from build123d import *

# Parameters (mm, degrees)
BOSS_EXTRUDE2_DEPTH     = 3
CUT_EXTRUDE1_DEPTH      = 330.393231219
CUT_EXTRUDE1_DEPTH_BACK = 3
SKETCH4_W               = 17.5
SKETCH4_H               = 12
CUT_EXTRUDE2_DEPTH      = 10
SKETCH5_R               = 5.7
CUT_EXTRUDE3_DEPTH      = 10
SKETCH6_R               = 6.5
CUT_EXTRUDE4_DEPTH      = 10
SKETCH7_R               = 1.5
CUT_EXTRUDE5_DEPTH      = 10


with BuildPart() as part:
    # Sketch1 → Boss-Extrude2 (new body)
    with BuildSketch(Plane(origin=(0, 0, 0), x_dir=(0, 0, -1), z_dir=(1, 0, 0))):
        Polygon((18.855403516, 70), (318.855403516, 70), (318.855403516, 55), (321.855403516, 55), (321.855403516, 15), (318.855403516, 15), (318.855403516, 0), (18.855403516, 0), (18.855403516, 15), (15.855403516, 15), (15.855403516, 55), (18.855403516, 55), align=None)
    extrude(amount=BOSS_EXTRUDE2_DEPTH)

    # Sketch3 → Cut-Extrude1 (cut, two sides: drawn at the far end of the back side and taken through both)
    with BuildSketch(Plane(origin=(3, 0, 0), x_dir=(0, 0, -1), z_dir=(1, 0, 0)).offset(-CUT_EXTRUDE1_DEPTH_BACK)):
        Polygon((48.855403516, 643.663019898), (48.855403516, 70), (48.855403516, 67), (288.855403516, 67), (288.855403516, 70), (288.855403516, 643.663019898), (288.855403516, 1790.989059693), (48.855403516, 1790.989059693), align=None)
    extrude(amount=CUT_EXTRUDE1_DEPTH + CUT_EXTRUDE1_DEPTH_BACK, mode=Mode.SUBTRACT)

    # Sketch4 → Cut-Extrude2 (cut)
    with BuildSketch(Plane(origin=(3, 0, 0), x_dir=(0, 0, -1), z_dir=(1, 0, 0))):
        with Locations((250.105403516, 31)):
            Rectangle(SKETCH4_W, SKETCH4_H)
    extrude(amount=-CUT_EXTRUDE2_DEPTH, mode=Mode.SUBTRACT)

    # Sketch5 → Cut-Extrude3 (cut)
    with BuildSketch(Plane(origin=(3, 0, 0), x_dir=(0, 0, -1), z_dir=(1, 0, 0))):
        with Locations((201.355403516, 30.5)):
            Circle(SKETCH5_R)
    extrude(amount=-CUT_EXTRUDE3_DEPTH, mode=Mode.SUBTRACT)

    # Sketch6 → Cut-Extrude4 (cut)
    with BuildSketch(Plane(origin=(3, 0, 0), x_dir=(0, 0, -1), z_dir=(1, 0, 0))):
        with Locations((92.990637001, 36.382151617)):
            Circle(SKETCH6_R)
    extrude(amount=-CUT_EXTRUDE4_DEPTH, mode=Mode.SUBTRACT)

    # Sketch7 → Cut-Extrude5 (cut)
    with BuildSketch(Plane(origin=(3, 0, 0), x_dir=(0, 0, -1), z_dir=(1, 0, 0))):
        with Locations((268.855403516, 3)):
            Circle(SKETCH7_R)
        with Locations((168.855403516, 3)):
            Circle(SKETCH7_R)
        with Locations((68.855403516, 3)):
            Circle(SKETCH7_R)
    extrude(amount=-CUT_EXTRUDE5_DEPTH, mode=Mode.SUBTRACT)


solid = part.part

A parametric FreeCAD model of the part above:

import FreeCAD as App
import Part
import Sketcher
Q = App.Units.Quantity


def add_polygon(sketch, points):
    """Adds a closed chain of lines whose ends are joined by coincident constraints."""
    first, n = sketch.GeometryCount, len(points)
    for a, b in zip(points, points[1:] + points[:1]):
        sketch.addGeometry(Part.LineSegment(App.Vector(*a, 0), App.Vector(*b, 0)), False)
    for i in range(n):
        sketch.addConstraint(Sketcher.Constraint("Coincident", first + i, 2, first + (i + 1) % n, 1))

doc = App.newDocument("Part")
body = doc.addObject("PartDesign::Body", "Body")

sketch1 = body.newObject("Sketcher::SketchObject", "Sketch")
sketch1.AttachmentSupport = (doc.getObject("YZ_Plane"), [""])
sketch1.MapMode = "FlatFace"
add_polygon(sketch1, [(70, -318.9), (70, -18.9), (55, -18.9), (55, -15.9), (15, -15.9), (15, -18.9), (0, -18.9), (0, -318.9), (15, -318.9), (15, -321.9), (55, -321.9), (55, -318.9)])
sketch1.addConstraint([
    Sketcher.Constraint("Vertical", 0),
    Sketcher.Constraint("Horizontal", 1),
    Sketcher.Constraint("Vertical", 2),
    Sketcher.Constraint("Horizontal", 3),
    Sketcher.Constraint("Vertical", 4),
    Sketcher.Constraint("Horizontal", 5),
    Sketcher.Constraint("Vertical", 6),
    Sketcher.Constraint("Horizontal", 7),
    Sketcher.Constraint("Vertical", 8),
    Sketcher.Constraint("Horizontal", 9),
    Sketcher.Constraint("Vertical", 10),
    Sketcher.Constraint("Horizontal", 11),
    Sketcher.Constraint("PointOnObject", 5, 2, -2),
    Sketcher.Constraint("Horizontal", 1, 2, 4, 2),
    Sketcher.Constraint("Horizontal", 7, 2, 10, 2),
    Sketcher.Constraint("Vertical", 4, 2, 7, 2),
    Sketcher.Constraint("Vertical", 2, 2, 9, 2),
    Sketcher.Constraint("Equal", 1, 5),
    Sketcher.Constraint("Equal", 4, 8),
    Sketcher.Constraint("DistanceX", 1, 2, 1, 1, Q("15 mm")),
    Sketcher.Constraint("DistanceX", 3, 2, 3, 1, Q("40 mm")),
    Sketcher.Constraint("DistanceY", 0, 1, 0, 2, Q("300 mm")),
    Sketcher.Constraint("DistanceY", 2, 1, 2, 2, Q("3 mm")),
    Sketcher.Constraint("DistanceY", 0, 2, -1, 1, Q("18.855404 mm")),
])
pad1 = body.newObject("PartDesign::Pad", "Pad")
pad1.Profile = sketch1
pad1.Length = 3

sketch2 = body.newObject("Sketcher::SketchObject", "Sketch001")
sketch2.AttachmentSupport = (doc.getObject("YZ_Plane"), [""])
sketch2.MapMode = "FlatFace"
sketch2.AttachmentOffset = App.Placement(App.Vector(0, 0, 3), App.Rotation())
add_polygon(sketch2, [(67, -49), (67, -289), (1791, -289), (1791, -49)])
sketch2.addConstraint([
    Sketcher.Constraint("Vertical", 0),
    Sketcher.Constraint("Horizontal", 1),
    Sketcher.Constraint("Vertical", 2),
    Sketcher.Constraint("Horizontal", 3),
    Sketcher.Constraint("DistanceY", 0, 2, 0, 1, Q("240 mm")),
    Sketcher.Constraint("DistanceX", -1, 1, 0, 2, Q("67 mm")),
    Sketcher.Constraint("DistanceX", 1, 1, 1, 2, Q("1723.98906 mm")),
    Sketcher.Constraint("DistanceY", 0, 2, -1, 1, Q("288.855404 mm")),
])
pocket1 = body.newObject("PartDesign::Pocket", "Pocket")
pocket1.Profile = sketch2
pocket1.Type = "ThroughAll"
pocket1.Midplane = True

sketch3 = body.newObject("Sketcher::SketchObject", "Sketch002")
sketch3.AttachmentSupport = (doc.getObject("YZ_Plane"), [""])
sketch3.MapMode = "FlatFace"
sketch3.AttachmentOffset = App.Placement(App.Vector(0, 0, 3), App.Rotation())
add_polygon(sketch3, [(37, -241), (25, -241), (25, -259), (37, -259)])
sketch3.addConstraint([
    Sketcher.Constraint("Horizontal", 0),
    Sketcher.Constraint("Vertical", 1),
    Sketcher.Constraint("Horizontal", 2),
    Sketcher.Constraint("Vertical", 3),
    Sketcher.Constraint("DistanceX", 0, 2, 0, 1, Q("12 mm")),
    Sketcher.Constraint("DistanceY", 1, 2, 1, 1, Q("17.5 mm")),
    Sketcher.Constraint("DistanceX", -1, 1, 0, 2, Q("25 mm")),
    Sketcher.Constraint("DistanceY", 0, 2, -1, 1, Q("241.355404 mm")),
])
pocket2 = body.newObject("PartDesign::Pocket", "Pocket001")
pocket2.Profile = sketch3
pocket2.Length = 10

sketch4 = body.newObject("Sketcher::SketchObject", "Sketch003")
sketch4.AttachmentSupport = (doc.getObject("YZ_Plane"), [""])
sketch4.MapMode = "FlatFace"
sketch4.AttachmentOffset = App.Placement(App.Vector(0, 0, 3), App.Rotation())
sketch4.addGeometry(Part.Circle(App.Vector(30, -201, 0), App.Vector(0, 0, 1), 6), False)
sketch4.addConstraint([
    Sketcher.Constraint("Diameter", 0, Q("11.4 mm")),
    Sketcher.Constraint("DistanceX", -1, 1, 0, 3, Q("30.5 mm")),
    Sketcher.Constraint("DistanceY", 0, 3, -1, 1, Q("201.355404 mm")),
])
pocket3 = body.newObject("PartDesign::Pocket", "Pocket002")
pocket3.Profile = sketch4
pocket3.Length = 10

sketch5 = body.newObject("Sketcher::SketchObject", "Sketch004")
sketch5.AttachmentSupport = (doc.getObject("YZ_Plane"), [""])
sketch5.MapMode = "FlatFace"
sketch5.AttachmentOffset = App.Placement(App.Vector(0, 0, 3), App.Rotation())
sketch5.addGeometry(Part.Circle(App.Vector(36, -93, 0), App.Vector(0, 0, 1), 6), False)
sketch5.addConstraint([
    Sketcher.Constraint("Diameter", 0, Q("13 mm")),
    Sketcher.Constraint("DistanceX", -1, 1, 0, 3, Q("36.382152 mm")),
    Sketcher.Constraint("DistanceY", 0, 3, -1, 1, Q("92.990637 mm")),
])
pocket4 = body.newObject("PartDesign::Pocket", "Pocket003")
pocket4.Profile = sketch5
pocket4.Length = 10

sketch6 = body.newObject("Sketcher::SketchObject", "Sketch005")
sketch6.AttachmentSupport = (doc.getObject("YZ_Plane"), [""])
sketch6.MapMode = "FlatFace"
sketch6.AttachmentOffset = App.Placement(App.Vector(0, 0, 3), App.Rotation())
sketch6.addGeometry([
    Part.Circle(App.Vector(3, -268.9, 0), App.Vector(0, 0, 1), 1.5),
    Part.Circle(App.Vector(3, -168.9, 0), App.Vector(0, 0, 1), 1.5),
    Part.Circle(App.Vector(3, -68.9, 0), App.Vector(0, 0, 1), 1.5),
], False)
sketch6.addConstraint([
    Sketcher.Constraint("Equal", 0, 1),
    Sketcher.Constraint("Equal", 1, 2),
    Sketcher.Constraint("Vertical", 0, 3, 1, 3),
    Sketcher.Constraint("Vertical", 1, 3, 2, 3),
    Sketcher.Constraint("Diameter", 0, Q("3 mm")),
    Sketcher.Constraint("DistanceX", -1, 1, 0, 3, Q("3 mm")),
    Sketcher.Constraint("DistanceY", 0, 3, 1, 3, Q("100 mm")),
    Sketcher.Constraint("DistanceY", 1, 3, 2, 3, Q("100 mm")),
    Sketcher.Constraint("DistanceY", 0, 3, -1, 1, Q("268.855404 mm")),
])
pocket5 = body.newObject("PartDesign::Pocket", "Pocket004")
pocket5.Profile = sketch6
pocket5.Length = 10

doc.recompute()
